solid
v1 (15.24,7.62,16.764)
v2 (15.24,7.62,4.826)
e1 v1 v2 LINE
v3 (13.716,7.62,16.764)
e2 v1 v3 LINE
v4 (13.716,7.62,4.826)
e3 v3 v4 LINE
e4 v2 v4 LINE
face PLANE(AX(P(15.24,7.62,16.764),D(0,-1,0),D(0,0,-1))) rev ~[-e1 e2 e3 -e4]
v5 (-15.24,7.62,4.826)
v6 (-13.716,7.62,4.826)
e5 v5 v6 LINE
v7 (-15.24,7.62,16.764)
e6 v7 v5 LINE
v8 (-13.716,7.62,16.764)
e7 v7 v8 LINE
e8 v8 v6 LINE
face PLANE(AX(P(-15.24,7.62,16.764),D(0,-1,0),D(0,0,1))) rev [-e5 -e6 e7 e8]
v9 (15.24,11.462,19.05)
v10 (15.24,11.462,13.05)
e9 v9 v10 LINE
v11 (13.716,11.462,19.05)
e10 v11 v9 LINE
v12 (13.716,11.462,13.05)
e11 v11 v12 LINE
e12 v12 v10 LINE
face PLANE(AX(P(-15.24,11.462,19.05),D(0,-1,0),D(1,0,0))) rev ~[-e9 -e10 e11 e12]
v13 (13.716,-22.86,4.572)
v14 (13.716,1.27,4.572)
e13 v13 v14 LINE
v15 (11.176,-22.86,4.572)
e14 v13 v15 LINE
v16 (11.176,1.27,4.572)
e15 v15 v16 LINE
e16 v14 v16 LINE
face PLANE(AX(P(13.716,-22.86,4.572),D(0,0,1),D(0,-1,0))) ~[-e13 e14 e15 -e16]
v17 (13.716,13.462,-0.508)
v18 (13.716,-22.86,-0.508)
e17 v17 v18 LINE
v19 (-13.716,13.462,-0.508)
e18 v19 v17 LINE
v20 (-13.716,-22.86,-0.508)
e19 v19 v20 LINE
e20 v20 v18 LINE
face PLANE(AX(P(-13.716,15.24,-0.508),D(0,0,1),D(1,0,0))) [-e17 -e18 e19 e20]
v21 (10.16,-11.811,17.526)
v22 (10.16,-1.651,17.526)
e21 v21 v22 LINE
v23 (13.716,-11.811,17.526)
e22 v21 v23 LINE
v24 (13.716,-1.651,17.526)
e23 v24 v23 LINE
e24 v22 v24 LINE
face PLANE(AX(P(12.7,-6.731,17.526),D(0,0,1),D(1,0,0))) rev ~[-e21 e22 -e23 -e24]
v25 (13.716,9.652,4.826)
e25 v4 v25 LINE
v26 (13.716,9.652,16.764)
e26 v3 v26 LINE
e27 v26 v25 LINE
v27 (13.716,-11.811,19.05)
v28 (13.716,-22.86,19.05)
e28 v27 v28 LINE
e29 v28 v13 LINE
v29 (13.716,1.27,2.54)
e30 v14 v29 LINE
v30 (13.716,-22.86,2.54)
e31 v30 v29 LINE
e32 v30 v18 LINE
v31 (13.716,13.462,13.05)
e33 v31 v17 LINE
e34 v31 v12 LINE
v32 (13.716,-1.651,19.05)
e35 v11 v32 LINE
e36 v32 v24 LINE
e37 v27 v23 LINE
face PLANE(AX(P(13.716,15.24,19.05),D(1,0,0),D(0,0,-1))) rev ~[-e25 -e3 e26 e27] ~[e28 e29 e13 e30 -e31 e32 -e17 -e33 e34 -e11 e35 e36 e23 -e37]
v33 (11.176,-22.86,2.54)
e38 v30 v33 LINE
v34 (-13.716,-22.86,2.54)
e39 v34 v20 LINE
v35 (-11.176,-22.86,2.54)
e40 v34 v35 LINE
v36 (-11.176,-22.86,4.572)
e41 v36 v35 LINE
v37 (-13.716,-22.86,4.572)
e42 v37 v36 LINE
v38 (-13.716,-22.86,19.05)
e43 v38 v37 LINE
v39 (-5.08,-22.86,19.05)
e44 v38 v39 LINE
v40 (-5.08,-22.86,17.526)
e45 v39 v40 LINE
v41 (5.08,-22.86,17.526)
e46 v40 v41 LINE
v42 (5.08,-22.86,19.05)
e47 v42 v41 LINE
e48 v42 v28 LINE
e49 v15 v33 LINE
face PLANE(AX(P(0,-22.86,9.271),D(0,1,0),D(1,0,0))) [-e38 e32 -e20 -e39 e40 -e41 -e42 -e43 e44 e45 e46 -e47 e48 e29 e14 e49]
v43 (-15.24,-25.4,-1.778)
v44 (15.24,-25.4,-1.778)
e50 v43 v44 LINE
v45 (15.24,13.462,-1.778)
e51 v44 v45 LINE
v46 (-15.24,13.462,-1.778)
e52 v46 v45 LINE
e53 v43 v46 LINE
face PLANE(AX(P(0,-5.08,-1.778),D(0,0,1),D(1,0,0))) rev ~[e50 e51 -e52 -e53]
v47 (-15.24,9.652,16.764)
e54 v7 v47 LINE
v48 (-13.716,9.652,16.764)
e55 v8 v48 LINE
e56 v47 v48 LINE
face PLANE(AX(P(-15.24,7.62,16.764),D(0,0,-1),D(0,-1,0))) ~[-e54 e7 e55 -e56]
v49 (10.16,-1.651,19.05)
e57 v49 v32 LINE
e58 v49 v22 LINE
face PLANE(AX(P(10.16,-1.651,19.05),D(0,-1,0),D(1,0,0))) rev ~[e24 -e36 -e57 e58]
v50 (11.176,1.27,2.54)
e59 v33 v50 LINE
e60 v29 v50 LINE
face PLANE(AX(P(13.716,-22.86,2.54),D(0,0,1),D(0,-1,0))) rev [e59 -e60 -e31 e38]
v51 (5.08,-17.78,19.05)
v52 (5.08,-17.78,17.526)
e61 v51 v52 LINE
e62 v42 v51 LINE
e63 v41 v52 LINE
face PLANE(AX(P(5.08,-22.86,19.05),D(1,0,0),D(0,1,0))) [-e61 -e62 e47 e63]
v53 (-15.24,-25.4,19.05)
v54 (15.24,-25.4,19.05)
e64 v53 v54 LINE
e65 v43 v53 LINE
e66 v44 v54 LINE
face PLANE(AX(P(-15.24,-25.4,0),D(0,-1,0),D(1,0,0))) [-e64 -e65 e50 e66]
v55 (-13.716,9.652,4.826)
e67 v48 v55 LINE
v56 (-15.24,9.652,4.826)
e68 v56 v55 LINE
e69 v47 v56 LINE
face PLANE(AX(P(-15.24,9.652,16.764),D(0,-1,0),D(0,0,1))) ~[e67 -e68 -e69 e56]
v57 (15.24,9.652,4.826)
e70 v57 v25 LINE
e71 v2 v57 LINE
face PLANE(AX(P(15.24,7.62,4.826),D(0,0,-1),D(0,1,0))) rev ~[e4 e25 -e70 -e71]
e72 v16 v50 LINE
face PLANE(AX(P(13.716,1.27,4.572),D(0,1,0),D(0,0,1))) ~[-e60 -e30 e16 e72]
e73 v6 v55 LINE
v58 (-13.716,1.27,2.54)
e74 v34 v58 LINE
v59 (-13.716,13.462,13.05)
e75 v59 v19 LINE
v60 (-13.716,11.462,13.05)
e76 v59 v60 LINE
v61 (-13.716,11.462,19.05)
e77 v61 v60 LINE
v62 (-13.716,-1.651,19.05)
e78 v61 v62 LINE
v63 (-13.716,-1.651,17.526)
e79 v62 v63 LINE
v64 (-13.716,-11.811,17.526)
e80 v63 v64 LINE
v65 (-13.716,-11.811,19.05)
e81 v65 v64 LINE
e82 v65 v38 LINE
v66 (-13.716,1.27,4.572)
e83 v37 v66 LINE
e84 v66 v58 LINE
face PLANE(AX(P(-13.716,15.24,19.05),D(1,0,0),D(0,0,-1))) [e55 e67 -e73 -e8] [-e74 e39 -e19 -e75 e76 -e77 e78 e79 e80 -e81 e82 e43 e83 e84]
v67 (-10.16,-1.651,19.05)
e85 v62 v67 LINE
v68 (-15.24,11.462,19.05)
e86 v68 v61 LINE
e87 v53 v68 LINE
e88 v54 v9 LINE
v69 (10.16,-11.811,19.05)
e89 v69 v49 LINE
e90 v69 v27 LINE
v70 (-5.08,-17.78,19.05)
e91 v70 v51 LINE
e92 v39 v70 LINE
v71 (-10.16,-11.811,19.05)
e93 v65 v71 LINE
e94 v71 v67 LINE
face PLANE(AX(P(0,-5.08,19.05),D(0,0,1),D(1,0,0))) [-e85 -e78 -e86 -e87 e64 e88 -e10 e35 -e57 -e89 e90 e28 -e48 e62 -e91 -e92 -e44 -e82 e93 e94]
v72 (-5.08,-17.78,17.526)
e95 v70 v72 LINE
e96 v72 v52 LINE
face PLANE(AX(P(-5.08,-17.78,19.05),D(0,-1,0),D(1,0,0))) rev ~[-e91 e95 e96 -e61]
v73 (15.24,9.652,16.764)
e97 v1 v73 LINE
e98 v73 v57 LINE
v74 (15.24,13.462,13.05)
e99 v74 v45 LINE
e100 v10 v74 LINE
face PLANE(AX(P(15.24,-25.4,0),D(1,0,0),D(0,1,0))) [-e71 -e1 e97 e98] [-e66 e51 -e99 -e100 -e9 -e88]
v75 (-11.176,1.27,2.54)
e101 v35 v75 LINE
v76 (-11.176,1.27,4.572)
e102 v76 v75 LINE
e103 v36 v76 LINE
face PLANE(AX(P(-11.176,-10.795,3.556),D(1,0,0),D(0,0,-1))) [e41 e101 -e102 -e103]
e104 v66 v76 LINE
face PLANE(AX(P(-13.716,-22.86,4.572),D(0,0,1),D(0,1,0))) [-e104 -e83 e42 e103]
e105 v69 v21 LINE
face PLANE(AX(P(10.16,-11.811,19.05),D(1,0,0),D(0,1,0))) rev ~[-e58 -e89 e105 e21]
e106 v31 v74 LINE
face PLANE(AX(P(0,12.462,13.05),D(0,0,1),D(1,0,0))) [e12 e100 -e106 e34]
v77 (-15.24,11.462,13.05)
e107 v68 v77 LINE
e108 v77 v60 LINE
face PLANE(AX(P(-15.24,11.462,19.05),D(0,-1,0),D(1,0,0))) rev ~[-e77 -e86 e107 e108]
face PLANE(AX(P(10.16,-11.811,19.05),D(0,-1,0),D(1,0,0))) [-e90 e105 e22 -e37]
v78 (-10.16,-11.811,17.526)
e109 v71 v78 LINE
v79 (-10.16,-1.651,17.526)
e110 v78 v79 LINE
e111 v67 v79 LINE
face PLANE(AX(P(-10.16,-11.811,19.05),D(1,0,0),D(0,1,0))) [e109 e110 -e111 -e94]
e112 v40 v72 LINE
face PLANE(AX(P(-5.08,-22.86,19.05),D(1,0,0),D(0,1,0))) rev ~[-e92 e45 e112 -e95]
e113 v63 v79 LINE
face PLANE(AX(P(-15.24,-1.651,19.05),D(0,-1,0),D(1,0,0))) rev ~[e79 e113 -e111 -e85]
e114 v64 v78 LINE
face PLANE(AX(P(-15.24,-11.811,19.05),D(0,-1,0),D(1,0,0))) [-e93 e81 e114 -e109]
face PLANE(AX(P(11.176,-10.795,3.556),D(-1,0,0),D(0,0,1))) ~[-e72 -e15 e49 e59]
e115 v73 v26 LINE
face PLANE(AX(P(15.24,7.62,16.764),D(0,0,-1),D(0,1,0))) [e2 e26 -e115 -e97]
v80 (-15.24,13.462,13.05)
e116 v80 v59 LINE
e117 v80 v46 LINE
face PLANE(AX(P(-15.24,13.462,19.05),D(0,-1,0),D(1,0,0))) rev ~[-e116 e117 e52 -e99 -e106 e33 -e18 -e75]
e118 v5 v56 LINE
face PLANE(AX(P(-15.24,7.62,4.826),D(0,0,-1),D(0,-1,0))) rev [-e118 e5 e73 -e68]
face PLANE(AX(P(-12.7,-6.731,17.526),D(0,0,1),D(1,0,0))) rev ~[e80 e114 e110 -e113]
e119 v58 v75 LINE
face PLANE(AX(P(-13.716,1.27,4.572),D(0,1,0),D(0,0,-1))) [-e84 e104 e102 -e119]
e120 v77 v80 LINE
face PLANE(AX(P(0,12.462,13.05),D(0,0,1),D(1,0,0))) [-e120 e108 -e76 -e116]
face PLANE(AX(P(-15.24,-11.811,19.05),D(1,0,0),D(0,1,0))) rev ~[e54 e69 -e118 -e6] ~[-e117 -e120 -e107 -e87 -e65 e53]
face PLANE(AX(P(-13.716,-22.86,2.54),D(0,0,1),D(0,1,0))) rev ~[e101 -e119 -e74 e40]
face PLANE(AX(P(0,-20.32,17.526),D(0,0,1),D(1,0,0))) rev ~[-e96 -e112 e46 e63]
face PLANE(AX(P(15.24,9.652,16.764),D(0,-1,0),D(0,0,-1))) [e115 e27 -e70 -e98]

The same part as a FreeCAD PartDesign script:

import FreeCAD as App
import Part
import Sketcher
from FreeCAD import Vector
Q = App.Units.Quantity

doc = App.newDocument("Part")
params = doc.addObject("Spreadsheet::Sheet", "Params")
for row, (alias, value) in enumerate([
    ("sketch1_width", "1.2 in"),
    ("sketch1_height", "1.6 in"),
    ("pad1_length", "0.75 in"),
    ("pad1_length2", "0.07 in"),
    ("sketch2_width", "1.08 in"),
    ("sketch2_height", "0.77 in"),
    ("pocket1_length", "1.5 in"),
    ("sketch3_width", "0.2 in"),
    ("sketch3_width2", "0.4 in"),
    ("pad2_length", "0.06 in"),
    ("sketch4_width", "0.95 in"),
    ("sketch4_height", "0.08 in"),
    ("pad3_length", "0.1 in"),
    ("sketch5_width", "0.08 in"),
    ("sketch5_height", "0.47 in"),
    ("pocket2_length", "0.06 in"),
    ("sketch6_width", "1.2 in"),
    ("sketch6_height", "0.07 in"),
    ("sketch7_width", "1.2 in"),
    ("pocket4_length", "6 mm"),
], start=1):
    params.set(f"A{row}", alias)
    params.set(f"B{row}", "=" + value)
    params.setAlias(f"B{row}", alias)

body = doc.addObject("PartDesign::Body", "Body")

# Sketch on XY plane
sketch1 = body.newObject("Sketcher::SketchObject", "Sketch")
sketch1.AttachmentSupport = (doc.getObject("XY_Plane"), [""])
sketch1.MapMode = "FlatFace"
sketch1.addGeometry([
    Part.LineSegment(Vector(-15.24, 15.24, 0), Vector(-15.24, -25.4, 0)),
    Part.LineSegment(Vector(-15.24, -25.4, 0), Vector(15.24, -25.4, 0)),
    Part.LineSegment(Vector(15.24, -25.4, 0), Vector(15.24, 15.24, 0)),
    Part.LineSegment(Vector(15.24, 15.24, 0), Vector(-15.24, 15.24, 0)),
], False)
sketch1.addConstraint([
    Sketcher.Constraint("Coincident", 0, 2, 1, 1),
    Sketcher.Constraint("Coincident", 1, 2, 2, 1),
    Sketcher.Constraint("Coincident", 2, 2, 3, 1),
    Sketcher.Constraint("Coincident", 3, 2, 0, 1),
    Sketcher.Constraint("Vertical", 0),
    Sketcher.Constraint("Horizontal", 1),
    Sketcher.Constraint("Vertical", 2),
    Sketcher.Constraint("Horizontal", 3),
    Sketcher.Constraint("DistanceX", 1, 1, 1, 2, Q("1.2 in")),
    Sketcher.Constraint("DistanceY", 0, 2, 0, 1, Q("1.6 in")),
    Sketcher.Constraint("DistanceY", 0, 2, -1, 1, Q("1 in")),
    Sketcher.Constraint("DistanceX", 0, 2, -1, 1, Q("0.6 in")),
])
sketch1.setExpression("Constraints[8]", "Params.sketch1_width")
sketch1.setExpression("Constraints[9]", "Params.sketch1_height")
pad1 = body.newObject("PartDesign::Pad", "Pad")
pad1.Profile = sketch1
pad1.Type = "TwoLengths"
pad1.setExpression("Length", "Params.pad1_length")
pad1.setExpression("Length2", "Params.pad1_length2")

# Sketch on XZ plane
sketch2 = body.newObject("Sketcher::SketchObject", "Sketch001")
sketch2.AttachmentSupport = (doc.getObject("XZ_Plane"), [""])
sketch2.MapMode = "FlatFace"
sketch2.AttachmentOffset = App.Placement(Vector(0, 0, -0.6 * 25.4), App.Rotation())
sketch2.addGeometry([
    Part.LineSegment(Vector(-13.716, -0.508, 0), Vector(-13.716, 19.05, 0)),
    Part.LineSegment(Vector(-13.716, 19.05, 0), Vector(13.716, 19.05, 0)),
    Part.LineSegment(Vector(13.716, 19.05, 0), Vector(13.716, -0.508, 0)),
    Part.LineSegment(Vector(13.716, -0.508, 0), Vector(-13.716, -0.508, 0)),
], False)
sketch2.addConstraint([
    Sketcher.Constraint("Coincident", 0, 2, 1, 1),
    Sketcher.Constraint("Coincident", 1, 2, 2, 1),
    Sketcher.Constraint("Coincident", 2, 2, 3, 1),
    Sketcher.Constraint("Coincident", 3, 2, 0, 1),
    Sketcher.Constraint("Vertical", 0),
    Sketcher.Constraint("Horizontal", 1),
    Sketcher.Constraint("Vertical", 2),
    Sketcher.Constraint("Horizontal", 3),
    Sketcher.Constraint("DistanceX", 1, 1, 1, 2, Q("1.08 in")),
    Sketcher.Constraint("DistanceY", 0, 1, 0, 2, Q("0.77 in")),
    Sketcher.Constraint("DistanceX", 0, 2, -1, 1, Q("0.54 in")),
    Sketcher.Constraint("DistanceY", -1, 1, 0, 2, Q("0.75 in")),
])
sketch2.setExpression("Constraints[8]", "Params.sketch2_width")
sketch2.setExpression("Constraints[9]", "Params.sketch2_height")
pocket1 = body.newObject("PartDesign::Pocket", "Pocket")
pocket1.Profile = sketch2
pocket1.setExpression("Length", "Params.pocket1_length")
pocket1.Reversed = True

# Sketch on XY plane
sketch3 = body.newObject("Sketcher::SketchObject", "Sketch002")
sketch3.AttachmentSupport = (doc.getObject("XY_Plane"), [""])
sketch3.MapMode = "FlatFace"
sketch3.AttachmentOffset = App.Placement(Vector(0, 0, 0.75 * 25.4), App.Rotation())
sketch3.addGeometry([
    Part.LineSegment(Vector(-15.24, -1.651, 0), Vector(-15.24, -11.811, 0)),  # 0
    Part.LineSegment(Vector(-15.24, -11.811, 0), Vector(-10.16, -11.811, 0)),  # 1
    Part.LineSegment(Vector(-10.16, -11.811, 0), Vector(-10.16, -1.651, 0)),  # 2
    Part.LineSegment(Vector(-10.16, -1.651, 0), Vector(-15.24, -1.651, 0)),  # 3
    Part.LineSegment(Vector(10.16, -1.651, 0), Vector(10.16, -11.811, 0)),  # 4
    Part.LineSegment(Vector(10.16, -11.811, 0), Vector(15.24, -11.811, 0)),  # 5
    Part.LineSegment(Vector(15.24, -11.811, 0), Vector(15.24, -1.651, 0)),  # 6
    Part.LineSegment(Vector(15.24, -1.651, 0), Vector(10.16, -1.651, 0)),  # 7
    Part.LineSegment(Vector(-5.08, -17.78, 0), Vector(-5.08, -22.86, 0)),  # 8
    Part.LineSegment(Vector(-5.08, -22.86, 0), Vector(5.08, -22.86, 0)),  # 9
    Part.LineSegment(Vector(5.08, -22.86, 0), Vector(5.08, -17.78, 0)),  # 10
    Part.LineSegment(Vector(5.08, -17.78, 0), Vector(-5.08, -17.78, 0)),  # 11
], False)
sketch3.addConstraint([
    Sketcher.Constraint("Coincident", 0, 2, 1, 1),
    Sketcher.Constraint("Coincident", 1, 2, 2, 1),
    Sketcher.Constraint("Coincident", 2, 2, 3, 1),
    Sketcher.Constraint("Coincident", 3, 2, 0, 1),
    Sketcher.Constraint("Coincident", 4, 2, 5, 1),
    Sketcher.Constraint("Coincident", 5, 2, 6, 1),
    Sketcher.Constraint("Coincident", 6, 2, 7, 1),
    Sketcher.Constraint("Coincident", 7, 2, 4, 1),
    Sketcher.Constraint("Coincident", 8, 2, 9, 1),
    Sketcher.Constraint("Coincident", 9, 2, 10, 1),
    Sketcher.Constraint("Coincident", 10, 2, 11, 1),
    Sketcher.Constraint("Coincident", 11, 2, 8, 1),
    Sketcher.Constraint("Vertical", 0),
    Sketcher.Constraint("Horizontal", 1),
    Sketcher.Constraint("Vertical", 2),
    Sketcher.Constraint("Horizontal", 3),
    Sketcher.Constraint("Vertical", 4),
    Sketcher.Constraint("Horizontal", 5),
    Sketcher.Constraint("Vertical", 6),
    Sketcher.Constraint("Horizontal", 7),
    Sketcher.Constraint("Vertical", 8),
    Sketcher.Constraint("Horizontal", 9),
    Sketcher.Constraint("Vertical", 10),
    Sketcher.Constraint("Horizontal", 11),
    Sketcher.Constraint("Symmetric", 1, 2, 4, 2, -2),
    Sketcher.Constraint("Symmetric", 3, 2, 6, 2, -2),
    Sketcher.Constraint("Equal", 11, 0),
    Sketcher.Constraint("Equal", 7, 8),
    Sketcher.Constraint("DistanceX", 1, 1, 1, 2, Q("0.2 in")),
    Sketcher.Constraint("DistanceX", 9, 1, 9, 2, Q("0.4 in")),
    Sketcher.Constraint("DistanceX", 0, 2, 4, 2, Q("1 in")),
    Sketcher.Constraint("DistanceX", 8, 2, -1, 1, Q("0.2 in")),
    Sketcher.Constraint("DistanceY", 8, 2, -1, 1, Q("0.9 in")),
    Sketcher.Constraint("DistanceY", 0, 2, -1, 1, Q("0.465 in")),
])
sketch3.setExpression("Constraints[28]", "Params.sketch3_width")
sketch3.setExpression("Constraints[29]", "Params.sketch3_width2")
pad2 = body.newObject("PartDesign::Pad", "Pad001")
pad2.Profile = sketch3
pad2.setExpression("Length", "Params.pad2_length")
pad2.Reversed = True

# Sketch on YZ plane
sketch4 = body.newObject("Sketcher::SketchObject", "Sketch003")
sketch4.AttachmentSupport = (doc.getObject("YZ_Plane"), [""])
sketch4.MapMode = "FlatFace"
sketch4.AttachmentOffset = App.Placement(Vector(0, 0, -0.54 * 25.4), App.Rotation())
sketch4.addGeometry([
    Part.LineSegment(Vector(1.27, 4.572, 0), Vector(-22.86, 4.572, 0)),
    Part.LineSegment(Vector(-22.86, 4.572, 0), Vector(-22.86, 2.54, 0)),
    Part.LineSegment(Vector(-22.86, 2.54, 0), Vector(1.27, 2.54, 0)),
    Part.LineSegment(Vector(1.27, 2.54, 0), Vector(1.27, 4.572, 0)),
], False)
sketch4.addConstraint([
    Sketcher.Constraint("Coincident", 0, 2, 1, 1),
    Sketcher.Constraint("Coincident", 1, 2, 2, 1),
    Sketcher.Constraint("Coincident", 2, 2, 3, 1),
    Sketcher.Constraint("Coincident", 3, 2, 0, 1),
    Sketcher.Constraint("Horizontal", 0),
    Sketcher.Constraint("Vertical", 1),
    Sketcher.Constraint("Horizontal", 2),
    Sketcher.Constraint("Vertical", 3),
    Sketcher.Constraint("DistanceX", 0, 2, 0, 1, Q("0.95 in")),
    Sketcher.Constraint("DistanceY", 1, 2, 1, 1, Q("0.08 in")),
    Sketcher.Constraint("DistanceX", 0, 2, -1, 1, Q("0.9 in")),
    Sketcher.Constraint("DistanceY", -1, 1, 1, 2, Q("0.1 in")),
])
sketch4.setExpression("Constraints[8]", "Params.sketch4_width")
sketch4.setExpression("Constraints[9]", "Params.sketch4_height")
pad3 = body.newObject("PartDesign::Pad", "Pad002")
pad3.Profile = sketch4
pad3.setExpression("Length", "Params.pad3_length")
doc.recompute()

mirrored = body.newObject("PartDesign::Mirrored", "Mirrored")
mirrored.Originals = [pad3]
mirrored.MirrorPlane = (doc.getObject("YZ_Plane"), [""])
body.Tip = mirrored

# Sketch on YZ plane
sketch5 = body.newObject("Sketcher::SketchObject", "Sketch004")
sketch5.AttachmentSupport = (doc.getObject("YZ_Plane"), [""])
sketch5.MapMode = "FlatFace"
sketch5.AttachmentOffset = App.Placement(Vector(0, 0, 0.6 * 25.4), App.Rotation())
sketch5.addGeometry([
    Part.LineSegment(Vector(9.652, 16.764, 0), Vector(7.62, 16.764, 0)),
    Part.LineSegment(Vector(7.62, 16.764, 0), Vector(7.62, 4.826, 0)),
    Part.LineSegment(Vector(7.62, 4.826, 0), Vector(9.652, 4.826, 0)),
    Part.LineSegment(Vector(9.652, 4.826, 0), Vector(9.652, 16.764, 0)),
], False)
sketch5.addConstraint([
    Sketcher.Constraint("Coincident", 0, 2, 1, 1),
    Sketcher.Constraint("Coincident", 1, 2, 2, 1),
    Sketcher.Constraint("Coincident", 2, 2, 3, 1),
    Sketcher.Constraint("Coincident", 3, 2, 0, 1),
    Sketcher.Constraint("Horizontal", 0),
    Sketcher.Constraint("Vertical", 1),
    Sketcher.Constraint("Horizontal", 2),
    Sketcher.Constraint("Vertical", 3),
    Sketcher.Constraint("DistanceX", 0, 2, 0, 1, Q("0.08 in")),
    Sketcher.Constraint("DistanceY", 1, 2, 1, 1, Q("0.47 in")),
    Sketcher.Constraint("DistanceX", -1, 1, 0, 2, Q("0.3 in")),
    Sketcher.Constraint("DistanceY", -1, 1, 0, 2, Q("0.66 in")),
])
sketch5.setExpression("Constraints[8]", "Params.sketch5_width")
sketch5.setExpression("Constraints[9]", "Params.sketch5_height")
pocket2 = body.newObject("PartDesign::Pocket", "Pocket001")
pocket2.Profile = sketch5
pocket2.setExpression("Length", "Params.pocket2_length")
doc.recompute()

mirrored2 = body.newObject("PartDesign::Mirrored", "Mirrored001")
mirrored2.Originals = [pocket2]
mirrored2.MirrorPlane = (doc.getObject("YZ_Plane"), [""])
body.Tip = mirrored2

# Sketch on XY plane
sketch6 = body.newObject("Sketcher::SketchObject", "Sketch005")
sketch6.AttachmentSupport = (doc.getObject("XY_Plane"), [""])
sketch6.MapMode = "FlatFace"
sketch6.AttachmentOffset = App.Placement(Vector(0, 0, 0.75 * 25.4), App.Rotation())
sketch6.addGeometry([
    Part.LineSegment(Vector(-15.24, 15.24, 0), Vector(-15.24, 13.462, 0)),
    Part.LineSegment(Vector(-15.24, 13.462, 0), Vector(15.24, 13.462, 0)),
    Part.LineSegment(Vector(15.24, 13.462, 0), Vector(15.24, 15.24, 0)),
    Part.LineSegment(Vector(15.24, 15.24, 0), Vector(-15.24, 15.24, 0)),
], False)
sketch6.addConstraint([
    Sketcher.Constraint("Coincident", 0, 2, 1, 1),
    Sketcher.Constraint("Coincident", 1, 2, 2, 1),
    Sketcher.Constraint("Coincident", 2, 2, 3, 1),
    Sketcher.Constraint("Coincident", 3, 2, 0, 1),
    Sketcher.Constraint("Vertical", 0),
    Sketcher.Constraint("Horizontal", 1),
    Sketcher.Constraint("Vertical", 2),
    Sketcher.Constraint("Horizontal", 3),
    Sketcher.Constraint("DistanceX", 1, 1, 1, 2, Q("1.2 in")),
    Sketcher.Constraint("DistanceY", 0, 2, 0, 1, Q("0.07 in")),
    Sketcher.Constraint("DistanceX", 0, 2, -1, 1, Q("0.6 in")),
    Sketcher.Constraint("DistanceY", -1, 1, 2, 2, Q("0.6 in")),
])
sketch6.setExpression("Constraints[8]", "Params.sketch6_width")
sketch6.setExpression("Constraints[9]", "Params.sketch6_height")
pocket3 = body.newObject("PartDesign::Pocket", "Pocket002")
pocket3.Profile = sketch6
pocket3.Type = "ThroughAll"

# Sketch on XY plane
sketch7 = body.newObject("Sketcher::SketchObject", "Sketch006")
sketch7.AttachmentSupport = (doc.getObject("XY_Plane"), [""])
sketch7.MapMode = "FlatFace"
sketch7.AttachmentOffset = App.Placement(Vector(0, 0, 0.75 * 25.4), App.Rotation())
sketch7.addGeometry([
    Part.LineSegment(Vector(-15.24, 13.462, 0), Vector(-15.24, 11.462, 0)),
    Part.LineSegment(Vector(-15.24, 11.462, 0), Vector(15.24, 11.462, 0)),
    Part.LineSegment(Vector(15.24, 11.462, 0), Vector(15.24, 13.462, 0)),
    Part.LineSegment(Vector(15.24, 13.462, 0), Vector(-15.24, 13.462, 0)),
], False)
sketch7.addConstraint([
    Sketcher.Constraint("Coincident", 0, 2, 1, 1),
    Sketcher.Constraint("Coincident", 1, 2, 2, 1),
    Sketcher.Constraint("Coincident", 2, 2, 3, 1),
    Sketcher.Constraint("Coincident", 3, 2, 0, 1),
    Sketcher.Constraint("Vertical", 0),
    Sketcher.Constraint("Horizontal", 1),
    Sketcher.Constraint("Vertical", 2),
    Sketcher.Constraint("Horizontal", 3),
    Sketcher.Constraint("DistanceX", 1, 1, 1, 2, Q("1.2 in")),
    Sketcher.Constraint("DistanceX", 0, 2, -1, 1, Q("0.6 in")),
    Sketcher.Constraint("DistanceY", -1, 1, 2, 2, Q("0.53 in")),
    Sketcher.Constraint("DistanceY", 0, 2, 0, 1, 2.0),
])
sketch7.setExpression("Constraints[8]", "Params.sketch7_width")
pocket4 = body.newObject("PartDesign::Pocket", "Pocket003")
pocket4.Profile = sketch7
pocket4.setExpression("Length", "Params.pocket4_length")

doc.recompute()
